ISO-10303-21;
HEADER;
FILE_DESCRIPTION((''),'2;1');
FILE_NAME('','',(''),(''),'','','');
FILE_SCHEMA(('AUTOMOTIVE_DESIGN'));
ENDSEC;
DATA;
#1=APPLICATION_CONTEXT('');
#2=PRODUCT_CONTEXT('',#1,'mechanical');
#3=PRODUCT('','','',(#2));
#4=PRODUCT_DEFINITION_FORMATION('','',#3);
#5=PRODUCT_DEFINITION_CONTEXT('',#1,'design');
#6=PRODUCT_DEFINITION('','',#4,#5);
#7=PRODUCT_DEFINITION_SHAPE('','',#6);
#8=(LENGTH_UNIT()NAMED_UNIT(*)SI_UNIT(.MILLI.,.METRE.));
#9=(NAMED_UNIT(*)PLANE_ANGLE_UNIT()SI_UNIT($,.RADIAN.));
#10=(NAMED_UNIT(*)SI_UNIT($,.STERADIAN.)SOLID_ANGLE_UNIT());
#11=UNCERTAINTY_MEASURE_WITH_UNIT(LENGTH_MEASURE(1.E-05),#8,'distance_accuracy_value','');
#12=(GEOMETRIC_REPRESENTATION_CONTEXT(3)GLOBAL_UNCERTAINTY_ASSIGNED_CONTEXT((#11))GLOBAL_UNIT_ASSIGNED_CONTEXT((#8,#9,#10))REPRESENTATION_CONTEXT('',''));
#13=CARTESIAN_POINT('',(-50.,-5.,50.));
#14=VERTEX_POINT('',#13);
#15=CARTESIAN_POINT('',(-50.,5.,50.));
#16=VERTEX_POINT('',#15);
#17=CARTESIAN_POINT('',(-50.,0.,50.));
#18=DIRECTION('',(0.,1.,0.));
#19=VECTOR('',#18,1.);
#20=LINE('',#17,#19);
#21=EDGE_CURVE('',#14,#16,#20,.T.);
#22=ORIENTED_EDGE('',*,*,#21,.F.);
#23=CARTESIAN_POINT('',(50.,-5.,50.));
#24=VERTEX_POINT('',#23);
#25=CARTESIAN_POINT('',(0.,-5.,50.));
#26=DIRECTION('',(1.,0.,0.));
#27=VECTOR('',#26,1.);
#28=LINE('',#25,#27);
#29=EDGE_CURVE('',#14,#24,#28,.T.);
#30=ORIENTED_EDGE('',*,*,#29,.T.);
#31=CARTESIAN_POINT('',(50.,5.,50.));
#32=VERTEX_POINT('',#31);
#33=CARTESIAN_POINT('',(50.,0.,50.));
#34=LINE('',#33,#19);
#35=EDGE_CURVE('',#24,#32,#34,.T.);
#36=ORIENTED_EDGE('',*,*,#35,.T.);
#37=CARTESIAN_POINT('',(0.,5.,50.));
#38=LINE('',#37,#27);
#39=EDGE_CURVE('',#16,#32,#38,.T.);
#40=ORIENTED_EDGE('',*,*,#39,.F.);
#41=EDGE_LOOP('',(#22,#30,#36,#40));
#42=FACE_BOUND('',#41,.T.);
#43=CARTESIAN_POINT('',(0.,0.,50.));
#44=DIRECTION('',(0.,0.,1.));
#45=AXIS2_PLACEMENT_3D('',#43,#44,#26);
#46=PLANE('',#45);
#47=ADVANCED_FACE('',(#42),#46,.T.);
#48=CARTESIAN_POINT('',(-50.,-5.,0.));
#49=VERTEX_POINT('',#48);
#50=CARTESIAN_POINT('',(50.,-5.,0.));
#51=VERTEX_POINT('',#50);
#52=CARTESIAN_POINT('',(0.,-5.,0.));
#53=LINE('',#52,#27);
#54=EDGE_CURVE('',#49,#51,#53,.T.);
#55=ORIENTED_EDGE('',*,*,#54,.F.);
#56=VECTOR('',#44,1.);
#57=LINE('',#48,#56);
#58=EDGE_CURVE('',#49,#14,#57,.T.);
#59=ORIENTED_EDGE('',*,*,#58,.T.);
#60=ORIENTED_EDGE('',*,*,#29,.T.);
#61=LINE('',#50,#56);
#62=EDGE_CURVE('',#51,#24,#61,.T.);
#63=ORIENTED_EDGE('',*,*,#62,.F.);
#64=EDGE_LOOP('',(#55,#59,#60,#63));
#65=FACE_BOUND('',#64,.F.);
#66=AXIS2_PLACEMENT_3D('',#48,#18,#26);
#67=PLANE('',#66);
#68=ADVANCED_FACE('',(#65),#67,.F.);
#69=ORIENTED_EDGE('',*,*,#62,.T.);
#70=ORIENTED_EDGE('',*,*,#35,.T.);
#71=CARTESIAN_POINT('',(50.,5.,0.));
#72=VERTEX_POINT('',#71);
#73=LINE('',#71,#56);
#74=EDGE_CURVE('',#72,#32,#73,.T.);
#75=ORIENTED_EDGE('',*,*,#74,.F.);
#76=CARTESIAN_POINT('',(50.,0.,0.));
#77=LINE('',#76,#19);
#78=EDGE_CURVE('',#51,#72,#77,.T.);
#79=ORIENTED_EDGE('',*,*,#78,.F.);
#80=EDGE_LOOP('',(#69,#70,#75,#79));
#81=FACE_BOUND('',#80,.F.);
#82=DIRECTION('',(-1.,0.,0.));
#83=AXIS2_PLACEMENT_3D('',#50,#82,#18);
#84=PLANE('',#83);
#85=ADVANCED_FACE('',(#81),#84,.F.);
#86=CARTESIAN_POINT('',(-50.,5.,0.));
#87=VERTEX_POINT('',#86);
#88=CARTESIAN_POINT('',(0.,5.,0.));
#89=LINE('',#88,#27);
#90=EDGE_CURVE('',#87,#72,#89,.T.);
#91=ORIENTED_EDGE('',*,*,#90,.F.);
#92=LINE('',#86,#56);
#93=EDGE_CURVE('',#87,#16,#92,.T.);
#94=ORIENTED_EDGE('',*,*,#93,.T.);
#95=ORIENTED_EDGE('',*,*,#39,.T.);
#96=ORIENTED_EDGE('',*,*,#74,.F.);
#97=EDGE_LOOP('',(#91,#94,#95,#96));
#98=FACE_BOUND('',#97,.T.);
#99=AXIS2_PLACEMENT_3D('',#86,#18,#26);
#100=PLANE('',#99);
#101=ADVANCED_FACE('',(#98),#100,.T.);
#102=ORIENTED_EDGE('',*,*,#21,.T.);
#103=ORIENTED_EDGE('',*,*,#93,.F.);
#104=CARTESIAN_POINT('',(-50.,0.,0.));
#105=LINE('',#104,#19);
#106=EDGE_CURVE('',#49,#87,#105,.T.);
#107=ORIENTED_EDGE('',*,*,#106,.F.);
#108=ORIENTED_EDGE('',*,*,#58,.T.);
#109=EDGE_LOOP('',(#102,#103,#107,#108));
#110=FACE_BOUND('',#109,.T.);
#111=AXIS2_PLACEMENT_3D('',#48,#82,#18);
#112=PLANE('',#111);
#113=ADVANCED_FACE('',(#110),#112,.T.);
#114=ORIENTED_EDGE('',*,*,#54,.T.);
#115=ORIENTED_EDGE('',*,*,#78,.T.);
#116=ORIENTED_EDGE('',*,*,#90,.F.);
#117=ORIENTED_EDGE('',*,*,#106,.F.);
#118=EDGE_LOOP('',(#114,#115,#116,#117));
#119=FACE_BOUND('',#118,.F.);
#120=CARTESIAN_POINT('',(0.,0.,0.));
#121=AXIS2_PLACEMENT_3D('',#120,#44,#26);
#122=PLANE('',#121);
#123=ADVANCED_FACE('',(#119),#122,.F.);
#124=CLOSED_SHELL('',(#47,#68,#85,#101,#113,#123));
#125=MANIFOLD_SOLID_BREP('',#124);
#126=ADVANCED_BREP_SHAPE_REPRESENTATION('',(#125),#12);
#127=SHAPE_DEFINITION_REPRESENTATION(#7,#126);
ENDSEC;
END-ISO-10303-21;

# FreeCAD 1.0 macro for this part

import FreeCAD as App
import Part
import Sketcher

V = App.Vector


def add_polygon(sketch, points):
    """Adds a closed chain of lines whose ends are joined by coincident constraints."""
    first, n = sketch.GeometryCount, len(points)
    for a, b in zip(points, points[1:] + points[:1]):
        sketch.addGeometry(Part.LineSegment(App.Vector(*a, 0), App.Vector(*b, 0)), False)
    for i in range(n):
        sketch.addConstraint(Sketcher.Constraint("Coincident", first + i, 2, first + (i + 1) % n, 1))

doc = App.newDocument("Part")
body = doc.addObject("PartDesign::Body", "Body")

sketch1 = body.newObject("Sketcher::SketchObject", "Sketch")
sketch1.AttachmentSupport = (doc.getObject("XY_Plane"), [""])
sketch1.MapMode = "FlatFace"
add_polygon(sketch1, [(-50, 5), (-50, -5), (50, -5), (50, 5)])
sketch1.addConstraint(Sketcher.Constraint("Vertical", 0))
sketch1.addConstraint(Sketcher.Constraint("Horizontal", 1))
sketch1.addConstraint(Sketcher.Constraint("Vertical", 2))
sketch1.addConstraint(Sketcher.Constraint("Horizontal", 3))
sketch1.addConstraint(Sketcher.Constraint("Symmetric", 0, 2, 2, 2, -1, 1))
sketch1.addConstraint(Sketcher.Constraint("DistanceX", 1, 1, 1, 2, 100.0))
sketch1.addConstraint(Sketcher.Constraint("DistanceY", 0, 2, 0, 1, 10.0))
pad1 = body.newObject("PartDesign::Pad", "Pad")
pad1.Profile = sketch1
pad1.Length = 50

doc.recompute()
